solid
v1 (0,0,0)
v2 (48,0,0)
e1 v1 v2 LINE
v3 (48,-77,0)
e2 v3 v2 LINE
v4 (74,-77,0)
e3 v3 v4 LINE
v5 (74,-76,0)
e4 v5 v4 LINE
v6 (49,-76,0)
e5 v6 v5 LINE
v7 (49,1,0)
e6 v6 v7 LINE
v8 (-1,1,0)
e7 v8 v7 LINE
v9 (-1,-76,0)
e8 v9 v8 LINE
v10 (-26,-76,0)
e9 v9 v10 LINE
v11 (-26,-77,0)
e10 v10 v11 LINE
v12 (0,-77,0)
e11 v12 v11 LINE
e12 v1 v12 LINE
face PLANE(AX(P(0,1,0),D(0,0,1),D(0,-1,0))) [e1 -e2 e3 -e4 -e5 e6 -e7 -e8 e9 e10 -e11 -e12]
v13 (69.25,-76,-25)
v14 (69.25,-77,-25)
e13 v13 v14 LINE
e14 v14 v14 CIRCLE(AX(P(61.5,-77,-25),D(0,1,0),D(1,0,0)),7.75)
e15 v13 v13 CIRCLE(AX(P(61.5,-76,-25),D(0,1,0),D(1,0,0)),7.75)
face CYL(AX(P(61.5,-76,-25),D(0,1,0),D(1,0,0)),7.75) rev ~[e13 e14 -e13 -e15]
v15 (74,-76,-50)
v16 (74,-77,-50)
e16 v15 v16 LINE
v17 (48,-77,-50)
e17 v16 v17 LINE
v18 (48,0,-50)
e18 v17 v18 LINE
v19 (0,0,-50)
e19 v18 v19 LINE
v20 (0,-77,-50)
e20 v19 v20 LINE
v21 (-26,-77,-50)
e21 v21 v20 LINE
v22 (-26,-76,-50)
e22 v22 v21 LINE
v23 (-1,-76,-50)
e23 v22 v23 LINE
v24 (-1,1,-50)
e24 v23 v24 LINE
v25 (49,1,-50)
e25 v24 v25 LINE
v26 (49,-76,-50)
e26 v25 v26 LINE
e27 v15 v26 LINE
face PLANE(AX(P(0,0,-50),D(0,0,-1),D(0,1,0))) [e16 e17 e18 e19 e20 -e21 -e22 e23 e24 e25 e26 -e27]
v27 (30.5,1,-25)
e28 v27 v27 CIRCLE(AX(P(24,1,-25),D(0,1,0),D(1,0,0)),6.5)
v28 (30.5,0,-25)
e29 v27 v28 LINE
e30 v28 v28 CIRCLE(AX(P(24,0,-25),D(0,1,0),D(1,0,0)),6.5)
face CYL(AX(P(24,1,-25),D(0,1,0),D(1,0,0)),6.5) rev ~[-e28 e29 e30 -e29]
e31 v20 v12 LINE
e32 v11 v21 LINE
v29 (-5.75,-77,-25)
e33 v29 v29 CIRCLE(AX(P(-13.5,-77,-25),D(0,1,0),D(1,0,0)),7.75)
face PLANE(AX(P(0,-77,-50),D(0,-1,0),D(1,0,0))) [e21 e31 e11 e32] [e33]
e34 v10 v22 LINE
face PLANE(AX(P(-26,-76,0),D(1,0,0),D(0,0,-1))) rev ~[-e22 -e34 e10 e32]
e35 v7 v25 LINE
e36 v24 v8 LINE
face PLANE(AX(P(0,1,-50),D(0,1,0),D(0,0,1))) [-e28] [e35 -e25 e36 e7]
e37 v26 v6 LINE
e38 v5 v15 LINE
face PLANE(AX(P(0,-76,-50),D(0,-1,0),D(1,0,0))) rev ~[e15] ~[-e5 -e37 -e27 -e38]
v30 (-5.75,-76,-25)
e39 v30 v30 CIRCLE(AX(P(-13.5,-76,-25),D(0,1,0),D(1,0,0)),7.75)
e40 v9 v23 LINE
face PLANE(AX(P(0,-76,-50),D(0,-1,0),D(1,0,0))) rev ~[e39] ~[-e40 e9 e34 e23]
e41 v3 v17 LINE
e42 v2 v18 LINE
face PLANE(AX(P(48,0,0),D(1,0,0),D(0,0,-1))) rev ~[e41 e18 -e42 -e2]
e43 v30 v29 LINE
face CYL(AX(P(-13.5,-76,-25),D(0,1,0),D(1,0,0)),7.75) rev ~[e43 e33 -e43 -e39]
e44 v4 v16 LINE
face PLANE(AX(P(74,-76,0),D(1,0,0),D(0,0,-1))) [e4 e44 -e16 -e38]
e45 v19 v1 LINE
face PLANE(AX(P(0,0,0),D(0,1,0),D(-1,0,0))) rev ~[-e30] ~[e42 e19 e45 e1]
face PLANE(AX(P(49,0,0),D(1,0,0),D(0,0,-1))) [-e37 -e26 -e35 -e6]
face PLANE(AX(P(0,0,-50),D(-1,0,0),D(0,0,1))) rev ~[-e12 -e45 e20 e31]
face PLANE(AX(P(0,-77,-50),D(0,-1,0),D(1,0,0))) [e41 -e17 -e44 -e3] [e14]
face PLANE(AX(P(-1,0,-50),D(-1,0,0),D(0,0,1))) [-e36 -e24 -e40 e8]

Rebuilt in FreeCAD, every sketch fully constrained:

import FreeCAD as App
import Part
import Sketcher
Q = App.Units.Quantity


def add_polygon(sketch, points):
    """Adds a closed chain of lines whose ends are joined by coincident constraints."""
    first, n = sketch.GeometryCount, len(points)
    for a, b in zip(points, points[1:] + points[:1]):
        sketch.addGeometry(Part.LineSegment(App.Vector(*a, 0), App.Vector(*b, 0)), False)
    for i in range(n):
        sketch.addConstraint(Sketcher.Constraint("Coincident", first + i, 2, first + (i + 1) % n, 1))

doc = App.newDocument("Part")
body = doc.addObject("PartDesign::Body", "Body")

sketch1 = body.newObject("Sketcher::SketchObject", "Sketch")
sketch1.AttachmentSupport = (doc.getObject("XZ_Plane"), [""])
sketch1.MapMode = "FlatFace"
add_polygon(sketch1, [(0, -50), (0, 0), (48, 0), (48, -50)])
sketch1.addConstraint([
    Sketcher.Constraint("Vertical", 0),
    Sketcher.Constraint("Horizontal", 1),
    Sketcher.Constraint("Vertical", 2),
    Sketcher.Constraint("Horizontal", 3),
    Sketcher.Constraint("Coincident", 0, 2, -1, 1),
    Sketcher.Constraint("DistanceX", 1, 1, 1, 2, Q("48 mm")),
    Sketcher.Constraint("DistanceY", 0, 1, 0, 2, Q("50 mm")),
])
pad1 = body.newObject("PartDesign::Pad", "Pad")
pad1.Profile = sketch1
pad1.Length = 1
pad1.Reversed = True

sketch2 = body.newObject("Sketcher::SketchObject", "Sketch001")
sketch2.AttachmentSupport = (doc.getObject("YZ_Plane"), [""])
sketch2.MapMode = "FlatFace"
sketch2.AttachmentOffset = App.Placement(App.Vector(0, 0, 48), App.Rotation())
add_polygon(sketch2, [(1, -50), (1, 0), (-76, 0), (-76, -50)])
sketch2.addConstraint([
    Sketcher.Constraint("Vertical", 0),
    Sketcher.Constraint("Horizontal", 1),
    Sketcher.Constraint("Vertical", 2),
    Sketcher.Constraint("Horizontal", 3),
    Sketcher.Constraint("PointOnObject", 0, 2, -1),
    Sketcher.Constraint("DistanceX", 1, 2, 1, 1, Q("77 mm")),
    Sketcher.Constraint("DistanceY", 0, 1, 0, 2, Q("50 mm")),
    Sketcher.Constraint("DistanceX", -1, 1, 0, 2, Q("1 mm")),
])
pad2 = body.newObject("PartDesign::Pad", "Pad001")
pad2.Profile = sketch2
pad2.Length = 1

sketch3 = body.newObject("Sketcher::SketchObject", "Sketch002")
sketch3.AttachmentSupport = (doc.getObject("YZ_Plane"), [""])
sketch3.MapMode = "FlatFace"
add_polygon(sketch3, [(1, -50), (-76, -50), (-76, 0), (1, 0)])
sketch3.addConstraint([
    Sketcher.Constraint("Horizontal", 0),
    Sketcher.Constraint("Vertical", 1),
    Sketcher.Constraint("Horizontal", 2),
    Sketcher.Constraint("Vertical", 3),
    Sketcher.Constraint("PointOnObject", 1, 2, -1),
    Sketcher.Constraint("DistanceX", 0, 2, 0, 1, Q("77 mm")),
    Sketcher.Constraint("DistanceY", 1, 1, 1, 2, Q("50 mm")),
    Sketcher.Constraint("DistanceX", 0, 2, -1, 1, Q("76 mm")),
])
pad3 = body.newObject("PartDesign::Pad", "Pad002")
pad3.Profile = sketch3
pad3.Length = 1
pad3.Reversed = True

sketch4 = body.newObject("Sketcher::SketchObject", "Sketch003")
sketch4.AttachmentSupport = (doc.getObject("XZ_Plane"), [""])
sketch4.MapMode = "FlatFace"
sketch4.AttachmentOffset = App.Placement(App.Vector(0, 0, 76), App.Rotation())
add_polygon(sketch4, [(0, -50), (0, 0), (-26, 0), (-26, -50)])
add_polygon(sketch4, [(74, 0), (48, 0), (48, -50), (74, -50)])
sketch4.addConstraint([
    Sketcher.Constraint("Vertical", 0),
    Sketcher.Constraint("Horizontal", 1),
    Sketcher.Constraint("Vertical", 2),
    Sketcher.Constraint("Horizontal", 3),
    Sketcher.Constraint("Horizontal", 4),
    Sketcher.Constraint("Vertical", 5),
    Sketcher.Constraint("Horizontal", 6),
    Sketcher.Constraint("Vertical", 7),
    Sketcher.Constraint("Coincident", 0, 2, -1, 1),
    Sketcher.Constraint("PointOnObject", 4, 2, -1),
    Sketcher.Constraint("Horizontal", 3, 2, 5, 2),
    Sketcher.Constraint("Equal", 3, 4),
    Sketcher.Constraint("DistanceX", 1, 2, 1, 1, Q("26 mm")),
    Sketcher.Constraint("DistanceY", 0, 1, 0, 2, Q("50 mm")),
    Sketcher.Constraint("DistanceX", -1, 1, 4, 2, Q("48 mm")),
])
pad4 = body.newObject("PartDesign::Pad", "Pad003")
pad4.Profile = sketch4
pad4.Length = 1

sketch5 = body.newObject("Sketcher::SketchObject", "Sketch004")
sketch5.AttachmentSupport = (doc.getObject("XZ_Plane"), [""])
sketch5.MapMode = "FlatFace"
sketch5.AttachmentOffset = App.Placement(App.Vector(0, 0, -1), App.Rotation())
sketch5.addGeometry(Part.Circle(App.Vector(24, -25, 0), App.Vector(0, 0, 1), 6), False)
sketch5.addConstraint([
    Sketcher.Constraint("Diameter", 0, Q("13 mm")),
    Sketcher.Constraint("DistanceY", 0, 3, -1, 1, Q("25 mm")),
    Sketcher.Constraint("DistanceX", -1, 1, 0, 3, Q("24 mm")),
])
pocket1 = body.newObject("PartDesign::Pocket", "Pocket")
pocket1.Profile = sketch5
pocket1.Length = 1
pocket1.Reversed = True

sketch6 = body.newObject("Sketcher::SketchObject", "Sketch005")
sketch6.AttachmentSupport = (doc.getObject("XZ_Plane"), [""])
sketch6.MapMode = "FlatFace"
sketch6.AttachmentOffset = App.Placement(App.Vector(0, 0, 76), App.Rotation())
sketch6.addGeometry([
    Part.Circle(App.Vector(62, -25, 0), App.Vector(0, 0, 1), 8),
    Part.Circle(App.Vector(-14, -25, 0), App.Vector(0, 0, 1), 8),
], False)
sketch6.addConstraint([
    Sketcher.Constraint("Equal", 0, 1),
    Sketcher.Constraint("Horizontal", 0, 3, 1, 3),
    Sketcher.Constraint("Diameter", 0, Q("15.5 mm")),
    Sketcher.Constraint("DistanceY", 0, 3, -1, 1, Q("25 mm")),
    Sketcher.Constraint("DistanceX", 1, 3, 0, 3, Q("75 mm")),
    Sketcher.Constraint("DistanceX", -1, 1, 0, 3, Q("61.5 mm")),
])
pocket2 = body.newObject("PartDesign::Pocket", "Pocket001")
pocket2.Profile = sketch6
pocket2.Length = 15.5
pocket2.Reversed = True

doc.recompute()
